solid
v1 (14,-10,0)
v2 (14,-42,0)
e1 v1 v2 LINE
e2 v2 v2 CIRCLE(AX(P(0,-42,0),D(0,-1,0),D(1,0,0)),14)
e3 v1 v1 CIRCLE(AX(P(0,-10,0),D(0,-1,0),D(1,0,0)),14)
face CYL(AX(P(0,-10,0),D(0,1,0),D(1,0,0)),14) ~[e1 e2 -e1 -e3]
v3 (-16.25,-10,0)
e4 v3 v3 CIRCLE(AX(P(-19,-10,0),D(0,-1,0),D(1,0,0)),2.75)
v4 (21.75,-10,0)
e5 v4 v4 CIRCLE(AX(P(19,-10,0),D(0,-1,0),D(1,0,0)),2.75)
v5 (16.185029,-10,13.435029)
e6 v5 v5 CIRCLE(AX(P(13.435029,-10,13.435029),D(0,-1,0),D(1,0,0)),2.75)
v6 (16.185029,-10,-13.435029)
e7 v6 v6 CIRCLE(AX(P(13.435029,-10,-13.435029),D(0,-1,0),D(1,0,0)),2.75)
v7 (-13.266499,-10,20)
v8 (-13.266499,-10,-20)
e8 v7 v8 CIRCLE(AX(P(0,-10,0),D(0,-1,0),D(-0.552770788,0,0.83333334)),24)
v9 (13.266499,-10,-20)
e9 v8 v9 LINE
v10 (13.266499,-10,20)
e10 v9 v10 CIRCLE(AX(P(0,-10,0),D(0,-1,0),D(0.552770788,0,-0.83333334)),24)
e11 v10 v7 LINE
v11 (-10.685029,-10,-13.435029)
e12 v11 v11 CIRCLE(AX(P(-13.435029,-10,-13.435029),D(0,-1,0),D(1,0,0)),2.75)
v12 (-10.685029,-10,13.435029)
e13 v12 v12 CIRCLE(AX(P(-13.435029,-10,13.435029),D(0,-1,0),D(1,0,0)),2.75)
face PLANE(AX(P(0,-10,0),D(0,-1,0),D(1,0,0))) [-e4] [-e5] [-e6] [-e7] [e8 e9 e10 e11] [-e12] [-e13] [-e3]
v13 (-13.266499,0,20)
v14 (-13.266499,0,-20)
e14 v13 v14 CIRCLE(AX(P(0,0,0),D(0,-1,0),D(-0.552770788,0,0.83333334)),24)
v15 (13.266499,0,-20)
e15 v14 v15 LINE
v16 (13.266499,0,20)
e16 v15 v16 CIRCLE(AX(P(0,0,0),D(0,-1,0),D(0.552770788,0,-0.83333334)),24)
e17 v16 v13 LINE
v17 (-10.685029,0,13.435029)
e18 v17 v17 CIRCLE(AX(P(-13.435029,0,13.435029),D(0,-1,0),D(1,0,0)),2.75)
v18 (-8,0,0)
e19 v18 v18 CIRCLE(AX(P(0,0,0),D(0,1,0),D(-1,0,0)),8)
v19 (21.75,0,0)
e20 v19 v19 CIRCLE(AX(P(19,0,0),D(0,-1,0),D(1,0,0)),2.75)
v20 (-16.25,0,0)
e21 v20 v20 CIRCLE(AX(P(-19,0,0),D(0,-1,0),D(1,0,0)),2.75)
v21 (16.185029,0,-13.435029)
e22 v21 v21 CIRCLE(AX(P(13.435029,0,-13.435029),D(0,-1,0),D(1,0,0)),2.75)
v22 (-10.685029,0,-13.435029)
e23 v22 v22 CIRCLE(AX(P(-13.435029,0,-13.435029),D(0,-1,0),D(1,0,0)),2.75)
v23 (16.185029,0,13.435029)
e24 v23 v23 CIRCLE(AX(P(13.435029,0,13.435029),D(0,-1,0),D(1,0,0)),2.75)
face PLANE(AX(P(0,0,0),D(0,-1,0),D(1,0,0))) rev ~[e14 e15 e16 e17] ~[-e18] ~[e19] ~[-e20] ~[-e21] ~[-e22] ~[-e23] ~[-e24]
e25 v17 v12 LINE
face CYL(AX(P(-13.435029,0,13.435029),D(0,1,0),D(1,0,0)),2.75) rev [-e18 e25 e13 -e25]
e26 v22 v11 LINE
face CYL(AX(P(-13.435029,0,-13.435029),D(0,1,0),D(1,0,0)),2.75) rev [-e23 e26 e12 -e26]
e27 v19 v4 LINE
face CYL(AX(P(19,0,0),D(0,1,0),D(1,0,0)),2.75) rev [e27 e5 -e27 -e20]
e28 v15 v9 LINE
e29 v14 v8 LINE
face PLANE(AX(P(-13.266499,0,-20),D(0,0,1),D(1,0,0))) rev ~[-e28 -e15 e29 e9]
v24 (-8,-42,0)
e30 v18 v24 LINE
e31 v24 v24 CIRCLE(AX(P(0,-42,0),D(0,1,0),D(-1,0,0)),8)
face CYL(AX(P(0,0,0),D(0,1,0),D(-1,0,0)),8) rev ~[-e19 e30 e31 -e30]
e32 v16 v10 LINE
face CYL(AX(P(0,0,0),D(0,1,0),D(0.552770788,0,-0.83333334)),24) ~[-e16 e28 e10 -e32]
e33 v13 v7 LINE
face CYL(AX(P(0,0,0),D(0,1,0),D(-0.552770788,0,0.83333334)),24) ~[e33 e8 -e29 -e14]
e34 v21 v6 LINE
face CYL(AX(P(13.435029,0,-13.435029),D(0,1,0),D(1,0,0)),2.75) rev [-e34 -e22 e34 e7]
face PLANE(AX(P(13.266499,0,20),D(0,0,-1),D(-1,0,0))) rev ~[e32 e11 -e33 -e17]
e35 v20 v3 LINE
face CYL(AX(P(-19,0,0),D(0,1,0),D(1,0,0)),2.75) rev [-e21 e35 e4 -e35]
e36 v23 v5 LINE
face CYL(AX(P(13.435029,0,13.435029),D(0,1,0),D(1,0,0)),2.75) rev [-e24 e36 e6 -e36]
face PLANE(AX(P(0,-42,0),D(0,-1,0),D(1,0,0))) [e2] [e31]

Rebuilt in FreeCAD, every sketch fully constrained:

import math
import FreeCAD as App
import Part
import Sketcher

V = App.Vector

doc = App.newDocument("Part")
body = doc.addObject("PartDesign::Body", "Body")

sketch1 = body.newObject("Sketcher::SketchObject", "Sketch")
sketch1.AttachmentSupport = (doc.getObject("XZ_Plane"), [""])
sketch1.MapMode = "FlatFace"
sketch1.addGeometry(Part.LineSegment(V(13.3, 20, 0), V(-13.3, 20, 0)), False)
sketch1.addGeometry(Part.ArcOfCircle(Part.Circle(V(0, 0, 0), V(0, 0, 1), 24), math.radians(124), math.radians(236)), False)
sketch1.addGeometry(Part.LineSegment(V(-13.3, -20, 0), V(13.3, -20, 0)), False)
sketch1.addGeometry(Part.ArcOfCircle(Part.Circle(V(0, 0, 0), V(0, 0, 1), 24), math.radians(-56), math.radians(56)), False)
sketch1.addGeometry(Part.Circle(V(-13.4, -13.4, 0), V(0, 0, 1), 2.8), False)
sketch1.addGeometry(Part.Circle(V(13.4, -13.4, 0), V(0, 0, 1), 2.8), False)
sketch1.addGeometry(Part.Circle(V(-19, 0, 0), V(0, 0, 1), 2.8), False)
sketch1.addGeometry(Part.Circle(V(-13.4, 13.4, 0), V(0, 0, 1), 2.8), False)
sketch1.addGeometry(Part.Circle(V(19, 0, 0), V(0, 0, 1), 2.8), False)
sketch1.addGeometry(Part.Circle(V(13.4, 13.4, 0), V(0, 0, 1), 2.8), False)
sketch1.addConstraint(Sketcher.Constraint("Coincident", 0, 2, 1, 1))
sketch1.addConstraint(Sketcher.Constraint("Coincident", 1, 2, 2, 1))
sketch1.addConstraint(Sketcher.Constraint("Coincident", 2, 2, 3, 1))
sketch1.addConstraint(Sketcher.Constraint("Coincident", 3, 2, 0, 1))
sketch1.addConstraint(Sketcher.Constraint("Horizontal", 0))
sketch1.addConstraint(Sketcher.Constraint("Horizontal", 2))
sketch1.addConstraint(Sketcher.Constraint("Coincident", 1, 3, -1, 1))
sketch1.addConstraint(Sketcher.Constraint("Coincident", 3, 3, -1, 1))
sketch1.addConstraint(Sketcher.Constraint("Equal", 1, 3))
sketch1.addConstraint(Sketcher.Constraint("Equal", 4, 5))
sketch1.addConstraint(Sketcher.Constraint("Equal", 5, 6))
sketch1.addConstraint(Sketcher.Constraint("Equal", 6, 7))
sketch1.addConstraint(Sketcher.Constraint("Equal", 7, 8))
sketch1.addConstraint(Sketcher.Constraint("Equal", 8, 9))
sketch1.addConstraint(Sketcher.Constraint("Symmetric", 5, 3, 7, 3, -1, 1))
sketch1.addConstraint(Sketcher.Constraint("Symmetric", 6, 3, 8, 3, -1, 1))
sketch1.addConstraint(Sketcher.Constraint("Symmetric", 4, 3, 9, 3, -1, 1))
sketch1.addConstraint(Sketcher.Constraint("Symmetric", 4, 3, 5, 3, -2))
sketch1.addConstraint(Sketcher.Constraint("PointOnObject", 6, 3, -1))
sketch1.addConstraint(Sketcher.Constraint("Vertical", 0, 2, 1, 2))
sketch1.addConstraint(Sketcher.Constraint("Radius", 1, 24.0))
sketch1.addConstraint(Sketcher.Constraint("Diameter", 4, 5.5))
sketch1.addConstraint(Sketcher.Constraint("DistanceX", 6, 3, -1, 1, 19.0))
sketch1.addConstraint(Sketcher.Constraint("DistanceY", -1, 1, 0, 2, 20.0))
sketch1.addConstraint(Sketcher.Constraint("DistanceX", 4, 3, -1, 1, 13.435029))
sketch1.addConstraint(Sketcher.Constraint("DistanceY", 4, 3, -1, 1, 13.435029))
pad1 = body.newObject("PartDesign::Pad", "Pad")
pad1.Profile = sketch1
pad1.Length = 10

sketch2 = body.newObject("Sketcher::SketchObject", "Sketch001")
sketch2.AttachmentSupport = (doc.getObject("XZ_Plane"), [""])
sketch2.MapMode = "FlatFace"
sketch2.AttachmentOffset = App.Placement(V(0, 0, 10), App.Rotation())
sketch2.addGeometry(Part.Circle(V(0, 0, 0), V(0, 0, 1), 14), False)
sketch2.addConstraint(Sketcher.Constraint("Coincident", 0, 3, -1, 1))
sketch2.addConstraint(Sketcher.Constraint("Diameter", 0, 28.0))
pad2 = body.newObject("PartDesign::Pad", "Pad001")
pad2.Profile = sketch2
pad2.Length = 32

sketch3 = body.newObject("Sketcher::SketchObject", "Sketch002")
sketch3.AttachmentSupport = (doc.getObject("XZ_Plane"), [""])
sketch3.MapMode = "FlatFace"
sketch3.addGeometry(Part.Circle(V(0, 0, 0), V(0, 0, 1), 8), False)
sketch3.addConstraint(Sketcher.Constraint("Coincident", 0, 3, -1, 1))
sketch3.addConstraint(Sketcher.Constraint("Diameter", 0, 16.0))
pocket1 = body.newObject("PartDesign::Pocket", "Pocket")
pocket1.Profile = sketch3
pocket1.Type = "ThroughAll"
pocket1.Reversed = True

doc.recompute()
